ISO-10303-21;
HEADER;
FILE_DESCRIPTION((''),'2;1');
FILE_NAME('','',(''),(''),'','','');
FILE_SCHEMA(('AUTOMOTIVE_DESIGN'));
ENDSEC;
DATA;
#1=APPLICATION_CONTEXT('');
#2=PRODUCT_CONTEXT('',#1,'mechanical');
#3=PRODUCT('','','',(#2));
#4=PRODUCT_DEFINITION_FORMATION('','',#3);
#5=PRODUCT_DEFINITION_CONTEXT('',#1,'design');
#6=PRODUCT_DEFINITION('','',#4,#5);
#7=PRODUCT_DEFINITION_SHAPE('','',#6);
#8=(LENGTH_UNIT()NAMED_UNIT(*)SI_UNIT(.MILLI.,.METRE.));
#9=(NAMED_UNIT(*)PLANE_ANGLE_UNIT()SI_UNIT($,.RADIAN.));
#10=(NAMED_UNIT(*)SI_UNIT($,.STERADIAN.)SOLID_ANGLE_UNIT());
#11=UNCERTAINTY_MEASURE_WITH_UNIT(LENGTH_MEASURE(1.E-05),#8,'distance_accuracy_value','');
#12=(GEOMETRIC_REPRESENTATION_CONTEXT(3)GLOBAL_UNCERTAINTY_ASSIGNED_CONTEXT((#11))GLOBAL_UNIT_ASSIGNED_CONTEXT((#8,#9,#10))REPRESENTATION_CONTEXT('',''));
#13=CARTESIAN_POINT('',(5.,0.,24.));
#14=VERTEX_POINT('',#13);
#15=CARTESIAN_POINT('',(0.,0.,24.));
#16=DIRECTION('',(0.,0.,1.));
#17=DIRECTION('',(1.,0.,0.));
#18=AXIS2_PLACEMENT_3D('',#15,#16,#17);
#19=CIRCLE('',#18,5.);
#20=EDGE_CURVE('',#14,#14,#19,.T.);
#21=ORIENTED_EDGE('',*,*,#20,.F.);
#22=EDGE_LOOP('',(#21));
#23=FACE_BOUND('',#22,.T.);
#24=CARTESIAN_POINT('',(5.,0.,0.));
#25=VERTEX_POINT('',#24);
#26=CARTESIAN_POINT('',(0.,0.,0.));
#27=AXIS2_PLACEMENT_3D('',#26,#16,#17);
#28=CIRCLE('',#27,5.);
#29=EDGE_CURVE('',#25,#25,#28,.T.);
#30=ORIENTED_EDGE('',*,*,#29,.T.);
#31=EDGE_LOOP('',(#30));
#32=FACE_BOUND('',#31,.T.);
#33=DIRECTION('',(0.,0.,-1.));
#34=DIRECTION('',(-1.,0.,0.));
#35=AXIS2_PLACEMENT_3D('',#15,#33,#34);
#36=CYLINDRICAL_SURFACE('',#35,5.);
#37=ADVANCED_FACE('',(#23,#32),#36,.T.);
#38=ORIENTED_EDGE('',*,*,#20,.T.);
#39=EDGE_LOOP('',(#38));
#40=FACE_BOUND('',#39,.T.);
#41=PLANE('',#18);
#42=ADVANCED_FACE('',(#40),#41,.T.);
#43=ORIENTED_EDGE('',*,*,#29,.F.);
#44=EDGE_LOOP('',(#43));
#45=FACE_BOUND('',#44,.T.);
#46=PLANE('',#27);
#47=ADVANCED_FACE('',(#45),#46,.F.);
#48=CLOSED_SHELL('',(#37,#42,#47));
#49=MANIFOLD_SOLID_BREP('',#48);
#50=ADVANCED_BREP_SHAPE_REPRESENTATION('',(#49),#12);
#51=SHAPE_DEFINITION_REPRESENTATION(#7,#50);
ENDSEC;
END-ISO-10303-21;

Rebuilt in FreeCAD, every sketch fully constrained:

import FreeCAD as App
import Part
import Sketcher

doc = App.newDocument("Part")
body = doc.addObject("PartDesign::Body", "Body")

# Sketch on XY plane
sketch1 = doc.addObject("Sketcher::SketchObject", "Sketch")
body.addObject(sketch1)
sketch1.AttachmentSupport = (doc.XY_Plane, [""])
sketch1.MapMode = "FlatFace"
sketch1.addGeometry(Part.Circle(App.Vector(0, 0, 0), App.Vector(0, 0, 1), 5), False)
sketch1.addConstraint([
    Sketcher.Constraint("Coincident", 0, 3, -1, 1),
    Sketcher.Constraint("Diameter", 0, 10.0),
])
pad1 = doc.addObject("PartDesign::Pad", "Pad")
body.addObject(pad1)
pad1.Profile = sketch1
pad1.Length = 24

doc.recompute()
